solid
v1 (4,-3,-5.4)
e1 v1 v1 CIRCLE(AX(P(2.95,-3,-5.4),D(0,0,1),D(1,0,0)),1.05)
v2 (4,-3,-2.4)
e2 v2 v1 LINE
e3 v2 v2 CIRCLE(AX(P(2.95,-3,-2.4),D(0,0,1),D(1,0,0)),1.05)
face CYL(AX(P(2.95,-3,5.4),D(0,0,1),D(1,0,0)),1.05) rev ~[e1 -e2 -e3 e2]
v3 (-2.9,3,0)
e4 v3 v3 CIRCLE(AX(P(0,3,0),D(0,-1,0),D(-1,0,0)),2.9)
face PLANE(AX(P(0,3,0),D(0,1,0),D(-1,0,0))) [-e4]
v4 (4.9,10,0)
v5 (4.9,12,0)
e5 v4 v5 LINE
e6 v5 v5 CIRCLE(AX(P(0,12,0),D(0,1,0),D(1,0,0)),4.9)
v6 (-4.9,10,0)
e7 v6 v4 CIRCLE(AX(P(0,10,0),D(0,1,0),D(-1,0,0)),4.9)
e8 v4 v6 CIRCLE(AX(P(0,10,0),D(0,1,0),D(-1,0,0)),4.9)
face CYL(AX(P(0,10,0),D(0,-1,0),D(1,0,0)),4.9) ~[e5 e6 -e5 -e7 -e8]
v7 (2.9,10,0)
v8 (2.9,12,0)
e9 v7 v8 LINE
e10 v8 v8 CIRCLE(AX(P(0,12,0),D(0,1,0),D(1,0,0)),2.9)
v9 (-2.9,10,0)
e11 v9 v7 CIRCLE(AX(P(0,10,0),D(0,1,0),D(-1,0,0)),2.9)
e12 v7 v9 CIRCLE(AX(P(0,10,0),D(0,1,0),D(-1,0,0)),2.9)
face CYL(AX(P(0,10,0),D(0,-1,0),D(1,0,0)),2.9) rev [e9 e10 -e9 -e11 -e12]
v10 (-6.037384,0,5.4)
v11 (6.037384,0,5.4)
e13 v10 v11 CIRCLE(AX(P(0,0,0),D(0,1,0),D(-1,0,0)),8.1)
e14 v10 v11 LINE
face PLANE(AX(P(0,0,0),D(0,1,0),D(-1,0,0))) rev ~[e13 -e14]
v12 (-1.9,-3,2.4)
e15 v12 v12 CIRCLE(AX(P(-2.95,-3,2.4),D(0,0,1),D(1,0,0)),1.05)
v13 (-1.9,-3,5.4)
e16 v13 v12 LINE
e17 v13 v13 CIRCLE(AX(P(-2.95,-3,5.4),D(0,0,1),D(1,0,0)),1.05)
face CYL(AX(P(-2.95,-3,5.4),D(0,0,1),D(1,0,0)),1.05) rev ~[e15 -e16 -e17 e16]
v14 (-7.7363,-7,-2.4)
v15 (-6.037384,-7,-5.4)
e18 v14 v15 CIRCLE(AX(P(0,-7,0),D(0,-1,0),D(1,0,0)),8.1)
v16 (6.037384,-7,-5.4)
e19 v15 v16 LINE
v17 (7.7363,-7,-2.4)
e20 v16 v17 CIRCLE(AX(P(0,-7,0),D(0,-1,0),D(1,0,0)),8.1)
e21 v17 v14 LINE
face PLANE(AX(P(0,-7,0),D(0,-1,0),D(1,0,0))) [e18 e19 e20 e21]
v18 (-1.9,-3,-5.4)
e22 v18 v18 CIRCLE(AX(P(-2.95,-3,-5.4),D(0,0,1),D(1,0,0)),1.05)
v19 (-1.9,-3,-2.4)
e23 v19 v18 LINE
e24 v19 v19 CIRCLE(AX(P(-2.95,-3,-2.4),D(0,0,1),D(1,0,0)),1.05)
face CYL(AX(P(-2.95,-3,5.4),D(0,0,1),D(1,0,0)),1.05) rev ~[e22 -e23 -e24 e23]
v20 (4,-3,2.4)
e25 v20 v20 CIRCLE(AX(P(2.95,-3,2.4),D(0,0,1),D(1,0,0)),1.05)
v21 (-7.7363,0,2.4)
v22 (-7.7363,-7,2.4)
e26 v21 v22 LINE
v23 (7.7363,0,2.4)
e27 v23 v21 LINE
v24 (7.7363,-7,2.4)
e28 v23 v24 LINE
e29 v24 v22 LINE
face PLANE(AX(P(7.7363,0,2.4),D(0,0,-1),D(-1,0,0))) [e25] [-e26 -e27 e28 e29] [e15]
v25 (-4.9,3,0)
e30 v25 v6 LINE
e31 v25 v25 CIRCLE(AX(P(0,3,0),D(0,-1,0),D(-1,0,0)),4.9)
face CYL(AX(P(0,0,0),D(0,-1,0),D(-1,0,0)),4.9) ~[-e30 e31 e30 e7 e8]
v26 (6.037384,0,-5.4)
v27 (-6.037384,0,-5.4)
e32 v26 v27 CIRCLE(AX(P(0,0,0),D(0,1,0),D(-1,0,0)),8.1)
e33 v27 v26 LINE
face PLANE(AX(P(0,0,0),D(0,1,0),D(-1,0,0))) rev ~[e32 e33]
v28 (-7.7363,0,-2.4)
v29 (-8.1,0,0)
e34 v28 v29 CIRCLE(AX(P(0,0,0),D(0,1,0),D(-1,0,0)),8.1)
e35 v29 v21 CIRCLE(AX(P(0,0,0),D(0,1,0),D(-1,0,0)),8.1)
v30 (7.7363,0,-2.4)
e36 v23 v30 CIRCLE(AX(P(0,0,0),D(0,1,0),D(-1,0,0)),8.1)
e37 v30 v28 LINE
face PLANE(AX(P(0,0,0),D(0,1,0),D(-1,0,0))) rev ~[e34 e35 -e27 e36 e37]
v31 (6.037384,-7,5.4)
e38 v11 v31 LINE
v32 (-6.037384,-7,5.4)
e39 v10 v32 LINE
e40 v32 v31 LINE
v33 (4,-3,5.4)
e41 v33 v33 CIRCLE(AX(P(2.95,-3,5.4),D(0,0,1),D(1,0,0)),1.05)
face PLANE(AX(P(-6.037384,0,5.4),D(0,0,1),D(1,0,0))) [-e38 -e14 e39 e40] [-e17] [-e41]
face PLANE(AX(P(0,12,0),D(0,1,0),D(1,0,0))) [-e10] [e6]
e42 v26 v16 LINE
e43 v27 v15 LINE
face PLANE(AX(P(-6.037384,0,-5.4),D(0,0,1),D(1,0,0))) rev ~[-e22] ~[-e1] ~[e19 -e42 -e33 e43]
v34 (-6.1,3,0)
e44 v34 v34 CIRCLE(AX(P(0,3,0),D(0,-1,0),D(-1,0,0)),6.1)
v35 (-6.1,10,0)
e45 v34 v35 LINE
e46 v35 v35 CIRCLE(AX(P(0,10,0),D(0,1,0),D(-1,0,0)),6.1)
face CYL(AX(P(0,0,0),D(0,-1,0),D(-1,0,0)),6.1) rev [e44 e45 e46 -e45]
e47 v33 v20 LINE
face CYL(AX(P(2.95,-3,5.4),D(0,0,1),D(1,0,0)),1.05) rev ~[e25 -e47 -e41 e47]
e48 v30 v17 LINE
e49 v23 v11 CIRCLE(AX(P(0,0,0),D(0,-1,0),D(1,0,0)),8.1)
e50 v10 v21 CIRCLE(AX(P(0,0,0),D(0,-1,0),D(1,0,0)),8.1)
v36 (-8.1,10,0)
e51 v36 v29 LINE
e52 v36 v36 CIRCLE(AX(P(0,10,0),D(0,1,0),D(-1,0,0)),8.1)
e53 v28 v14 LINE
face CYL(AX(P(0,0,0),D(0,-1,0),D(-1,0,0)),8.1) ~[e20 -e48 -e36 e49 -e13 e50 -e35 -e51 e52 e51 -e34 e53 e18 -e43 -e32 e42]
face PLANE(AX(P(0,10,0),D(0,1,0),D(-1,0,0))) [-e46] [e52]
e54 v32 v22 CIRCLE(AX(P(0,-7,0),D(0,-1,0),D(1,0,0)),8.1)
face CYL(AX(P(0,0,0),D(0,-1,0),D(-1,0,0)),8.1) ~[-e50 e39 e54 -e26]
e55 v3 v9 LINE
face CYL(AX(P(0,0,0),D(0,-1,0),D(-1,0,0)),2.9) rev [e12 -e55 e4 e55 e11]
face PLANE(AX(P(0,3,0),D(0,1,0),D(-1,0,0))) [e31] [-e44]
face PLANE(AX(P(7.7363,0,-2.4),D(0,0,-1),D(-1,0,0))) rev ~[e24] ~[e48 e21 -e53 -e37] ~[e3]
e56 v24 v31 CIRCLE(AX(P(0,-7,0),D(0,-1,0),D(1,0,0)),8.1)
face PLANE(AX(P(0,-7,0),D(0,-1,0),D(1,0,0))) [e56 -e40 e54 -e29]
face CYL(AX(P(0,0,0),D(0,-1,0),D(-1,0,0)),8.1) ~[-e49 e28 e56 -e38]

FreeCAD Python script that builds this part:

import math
import FreeCAD as App
import Part
import Sketcher

V = App.Vector

doc = App.newDocument("Part")
body = doc.addObject("PartDesign::Body", "Body")

# Sketch on XZ plane
sketch1 = body.newObject("Sketcher::SketchObject", "Sketch")
sketch1.AttachmentSupport = (doc.getObject("XZ_Plane"), [""])
sketch1.MapMode = "FlatFace"
sketch1.addGeometry(Part.Circle(V(0, 0, 0), V(0, 0, 1), 8), False)
sketch1.addConstraint([
    Sketcher.Constraint("Coincident", 0, 3, -1, 1),
    Sketcher.Constraint("Diameter", 0, 16.2),
])
pad1 = body.newObject("PartDesign::Pad", "Pad")
pad1.Profile = sketch1
pad1.Length = 3
pad1.Reversed = True

# Sketch on XZ plane
sketch2 = body.newObject("Sketcher::SketchObject", "Sketch001")
sketch2.AttachmentSupport = (doc.getObject("XZ_Plane"), [""])
sketch2.MapMode = "FlatFace"
sketch2.addGeometry([
    Part.Circle(V(0, 0, 0), V(0, 0, 1), 4.9),
    Part.Circle(V(0, 0, 0), V(0, 0, 1), 2.9),
    Part.Circle(V(0, 0, 0), V(0, 0, 1), 8.1),
    Part.Circle(V(0, 0, 0), V(0, 0, 1), 6.1),
], False)
sketch2.addConstraint([
    Sketcher.Constraint("Coincident", 0, 3, -1, 1),
    Sketcher.Constraint("Coincident", 1, 3, -1, 1),
    Sketcher.Constraint("Coincident", 2, 3, -1, 1),
    Sketcher.Constraint("Coincident", 3, 3, -1, 1),
    Sketcher.Constraint("Diameter", 0, 9.8),
    Sketcher.Constraint("Diameter", 3, 12.2),
    Sketcher.Constraint("Diameter", 1, 5.8),
    Sketcher.Constraint("Diameter", 2, 16.2),
])
pad2 = body.newObject("PartDesign::Pad", "Pad001")
pad2.Profile = sketch2
pad2.Length = 10
pad2.Reversed = True

# Sketch on XZ plane
sketch3 = body.newObject("Sketcher::SketchObject", "Sketch002")
sketch3.AttachmentSupport = (doc.getObject("XZ_Plane"), [""])
sketch3.MapMode = "FlatFace"
sketch3.addGeometry([
    Part.LineSegment(V(-7.7, 2.4, 0), V(7.7, 2.4, 0)),  # 0
    Part.ArcOfCircle(Part.Circle(V(0, 0, 0), V(0, 0, 1), 8.1), math.radians(17), math.radians(42)),  # 1
    Part.LineSegment(V(6, 5.4, 0), V(-6, 5.4, 0)),  # 2
    Part.ArcOfCircle(Part.Circle(V(0, 0, 0), V(0, 0, 1), 8.1), math.radians(138), math.radians(163)),  # 3
    Part.ArcOfCircle(Part.Circle(V(0, 0, 0), V(0, 0, 1), 8.1), math.radians(-42), math.radians(-17)),  # 4
    Part.LineSegment(V(7.7, -2.4, 0), V(-7.7, -2.4, 0)),  # 5
    Part.ArcOfCircle(Part.Circle(V(0, 0, 0), V(0, 0, 1), 8.1), math.radians(-163), math.radians(-138)),  # 6
    Part.LineSegment(V(-6, -5.4, 0), V(6, -5.4, 0)),  # 7
], False)
sketch3.addConstraint([
    Sketcher.Constraint("Coincident", 0, 2, 1, 1),
    Sketcher.Constraint("Coincident", 1, 2, 2, 1),
    Sketcher.Constraint("Coincident", 2, 2, 3, 1),
    Sketcher.Constraint("Coincident", 3, 2, 0, 1),
    Sketcher.Constraint("Coincident", 4, 2, 5, 1),
    Sketcher.Constraint("Coincident", 5, 2, 6, 1),
    Sketcher.Constraint("Coincident", 6, 2, 7, 1),
    Sketcher.Constraint("Coincident", 7, 2, 4, 1),
    Sketcher.Constraint("Horizontal", 0),
    Sketcher.Constraint("Horizontal", 2),
    Sketcher.Constraint("Horizontal", 5),
    Sketcher.Constraint("Horizontal", 7),
    Sketcher.Constraint("Coincident", 1, 3, -1, 1),
    Sketcher.Constraint("Coincident", 3, 3, -1, 1),
    Sketcher.Constraint("Coincident", 4, 3, -1, 1),
    Sketcher.Constraint("Coincident", 6, 3, -1, 1),
    Sketcher.Constraint("Equal", 1, 3),
    Sketcher.Constraint("Equal", 3, 4),
    Sketcher.Constraint("Equal", 4, 6),
    Sketcher.Constraint("Vertical", 0, 2, 4, 2),
    Sketcher.Constraint("Vertical", 2, 2, 6, 2),
    Sketcher.Constraint("DistanceY", 0, 2, 1, 2, 3.0),
    Sketcher.Constraint("DistanceY", -1, 1, 0, 2, 2.4),
    Sketcher.Constraint("Radius", 1, 8.1),
])
pad3 = body.newObject("PartDesign::Pad", "Pad002")
pad3.Profile = sketch3
pad3.Length = 7

# Sketch on XY plane
sketch4 = body.newObject("Sketcher::SketchObject", "Sketch003")
sketch4.AttachmentSupport = (doc.getObject("XY_Plane"), [""])
sketch4.MapMode = "FlatFace"
sketch4.AttachmentOffset = App.Placement(V(0, 0, 5.4), App.Rotation())
sketch4.addGeometry([
    Part.Circle(V(-3, -3, 0), V(0, 0, 1), 1.1),
    Part.Circle(V(3, -3, 0), V(0, 0, 1), 1.1),
], False)
sketch4.addConstraint([
    Sketcher.Constraint("Equal", 0, 1),
    Sketcher.Constraint("Symmetric", 0, 3, 1, 3, -2),
    Sketcher.Constraint("Diameter", 0, 2.1),
    Sketcher.Constraint("DistanceY", 0, 3, -1, 1, 3.0),
    Sketcher.Constraint("DistanceX", 0, 3, 1, 3, 5.9),
])
pocket1 = body.newObject("PartDesign::Pocket", "Pocket")
pocket1.Profile = sketch4
pocket1.Length = 20

# Sketch on XZ plane
sketch5 = body.newObject("Sketcher::SketchObject", "Sketch004")
sketch5.AttachmentSupport = (doc.getObject("XZ_Plane"), [""])
sketch5.MapMode = "FlatFace"
sketch5.AttachmentOffset = App.Placement(V(0, 0, -10), App.Rotation())
sketch5.addGeometry([
    Part.Circle(V(0, 0, 0), V(0, 0, 1), 4.9),
    Part.Circle(V(0, 0, 0), V(0, 0, 1), 2.9),
], False)
sketch5.addConstraint([
    Sketcher.Constraint("Coincident", 0, 3, -1, 1),
    Sketcher.Constraint("Coincident", 1, 3, -1, 1),
    Sketcher.Constraint("Diameter", 0, 9.8),
    Sketcher.Constraint("Diameter", 1, 5.8),
])
pad4 = body.newObject("PartDesign::Pad", "Pad003")
pad4.Profile = sketch5
pad4.Length = 2
pad4.Reversed = True

doc.recompute()
